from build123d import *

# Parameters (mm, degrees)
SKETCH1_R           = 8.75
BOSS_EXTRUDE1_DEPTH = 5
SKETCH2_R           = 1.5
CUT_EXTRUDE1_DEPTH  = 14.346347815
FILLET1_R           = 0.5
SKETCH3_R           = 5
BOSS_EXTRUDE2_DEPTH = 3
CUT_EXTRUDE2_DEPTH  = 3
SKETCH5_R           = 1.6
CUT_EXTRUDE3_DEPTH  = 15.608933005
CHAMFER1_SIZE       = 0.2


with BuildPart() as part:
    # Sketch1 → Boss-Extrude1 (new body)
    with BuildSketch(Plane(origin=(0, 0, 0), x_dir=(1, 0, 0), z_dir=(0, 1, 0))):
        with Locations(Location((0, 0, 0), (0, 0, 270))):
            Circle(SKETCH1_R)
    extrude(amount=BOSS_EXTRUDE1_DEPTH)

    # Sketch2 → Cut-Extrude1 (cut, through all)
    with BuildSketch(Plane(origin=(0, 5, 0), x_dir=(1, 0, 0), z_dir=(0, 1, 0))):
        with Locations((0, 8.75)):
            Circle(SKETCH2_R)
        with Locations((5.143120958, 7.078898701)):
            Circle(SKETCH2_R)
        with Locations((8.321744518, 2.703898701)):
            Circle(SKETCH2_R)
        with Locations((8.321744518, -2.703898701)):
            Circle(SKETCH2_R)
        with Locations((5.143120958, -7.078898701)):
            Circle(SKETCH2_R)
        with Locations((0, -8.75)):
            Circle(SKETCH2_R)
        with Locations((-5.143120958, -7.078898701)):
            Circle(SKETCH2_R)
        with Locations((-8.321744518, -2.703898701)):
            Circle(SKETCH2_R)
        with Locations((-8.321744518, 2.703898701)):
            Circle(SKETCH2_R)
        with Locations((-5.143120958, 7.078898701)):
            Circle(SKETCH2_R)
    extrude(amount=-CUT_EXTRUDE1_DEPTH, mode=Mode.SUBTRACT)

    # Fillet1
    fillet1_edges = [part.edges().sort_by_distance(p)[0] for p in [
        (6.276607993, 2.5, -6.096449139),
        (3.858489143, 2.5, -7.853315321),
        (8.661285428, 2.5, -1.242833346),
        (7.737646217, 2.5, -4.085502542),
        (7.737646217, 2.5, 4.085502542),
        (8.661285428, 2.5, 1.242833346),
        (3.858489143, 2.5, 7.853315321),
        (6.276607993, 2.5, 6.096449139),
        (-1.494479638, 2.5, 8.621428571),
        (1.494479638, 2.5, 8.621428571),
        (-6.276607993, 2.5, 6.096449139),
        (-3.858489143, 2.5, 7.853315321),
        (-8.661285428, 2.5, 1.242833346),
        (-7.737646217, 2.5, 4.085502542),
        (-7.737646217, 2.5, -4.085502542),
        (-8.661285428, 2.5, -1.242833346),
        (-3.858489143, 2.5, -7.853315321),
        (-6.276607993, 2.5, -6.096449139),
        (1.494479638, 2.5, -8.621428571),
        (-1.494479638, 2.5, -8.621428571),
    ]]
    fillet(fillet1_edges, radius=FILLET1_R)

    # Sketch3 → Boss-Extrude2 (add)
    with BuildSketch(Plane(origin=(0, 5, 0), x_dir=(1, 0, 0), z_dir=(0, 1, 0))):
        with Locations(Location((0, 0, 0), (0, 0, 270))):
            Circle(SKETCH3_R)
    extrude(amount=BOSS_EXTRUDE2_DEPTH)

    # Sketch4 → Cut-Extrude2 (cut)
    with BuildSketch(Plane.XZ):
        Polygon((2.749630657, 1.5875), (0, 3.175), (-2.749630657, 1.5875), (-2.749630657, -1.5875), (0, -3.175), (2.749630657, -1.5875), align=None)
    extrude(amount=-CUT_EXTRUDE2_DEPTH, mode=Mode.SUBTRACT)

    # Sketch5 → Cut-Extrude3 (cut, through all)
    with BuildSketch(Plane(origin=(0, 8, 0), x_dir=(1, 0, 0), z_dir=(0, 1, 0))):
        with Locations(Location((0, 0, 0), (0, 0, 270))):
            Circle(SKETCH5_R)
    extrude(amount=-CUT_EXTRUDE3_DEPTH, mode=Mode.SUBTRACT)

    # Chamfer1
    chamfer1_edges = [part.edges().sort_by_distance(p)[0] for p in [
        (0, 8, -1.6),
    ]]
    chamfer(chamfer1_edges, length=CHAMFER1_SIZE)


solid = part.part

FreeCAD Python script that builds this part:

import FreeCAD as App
import Part
import Sketcher
Q = App.Units.Quantity


def edges_at(feature, points):
    """Names of the edges that pass closest to the given points."""
    edges = feature.Shape.Edges
    near = lambda p: min(range(len(edges)), key=lambda i: edges[i].distToShape(Part.Vertex(*p))[0])
    return sorted({f"Edge{near(p) + 1}" for p in points})

doc = App.newDocument("Part")
params = doc.addObject("Spreadsheet::Sheet", "Params")
for row, (alias, value) in enumerate([
    ("sketch1_diameter", "17.5 mm"),
    ("pad1_length", "5 mm"),
    ("sketch2_diameter", "3 mm"),
    ("fillet_radius", "0.5 mm"),
    ("sketch3_diameter", "10 mm"),
    ("pad2_length", "3 mm"),
    ("pocket2_length", "3 mm"),
    ("sketch5_diameter", "3.2 mm"),
    ("chamfer_size", "0.2 mm"),
], start=1):
    params.set(f"A{row}", alias)
    params.set(f"B{row}", "=" + value)
    params.setAlias(f"B{row}", alias)

body = doc.addObject("PartDesign::Body", "Body")

# Sketch on XZ plane
sketch1 = body.newObject("Sketcher::SketchObject", "Sketch")
sketch1.AttachmentSupport = (doc.getObject("XZ_Plane"), [""])
sketch1.MapMode = "FlatFace"
sketch1.addGeometry(Part.Circle(App.Vector(0, 0, 0), App.Vector(0, 0, 1), 8.75), False)
sketch1.addConstraint([
    Sketcher.Constraint("Coincident", 0, 3, -1, 1),
    Sketcher.Constraint("Diameter", 0, Q("17.5 mm")),
])
sketch1.setExpression("Constraints[1]", "Params.sketch1_diameter")
pad1 = body.newObject("PartDesign::Pad", "Pad")
pad1.Profile = sketch1
pad1.setExpression("Length", "Params.pad1_length")
pad1.Reversed = True

# Sketch on XZ plane
sketch2 = body.newObject("Sketcher::SketchObject", "Sketch001")
sketch2.AttachmentSupport = (doc.getObject("XZ_Plane"), [""])
sketch2.MapMode = "FlatFace"
sketch2.AttachmentOffset = App.Placement(App.Vector(0, 0, -5), App.Rotation())
sketch2.addGeometry([
    Part.Circle(App.Vector(0, -8.75, 0), App.Vector(0, 0, 1), 1.5),  # 0
    Part.Circle(App.Vector(5.143121, -7.078899, 0), App.Vector(0, 0, 1), 1.5),  # 1
    Part.Circle(App.Vector(8.321745, -2.703899, 0), App.Vector(0, 0, 1), 1.5),  # 2
    Part.Circle(App.Vector(8.321745, 2.703899, 0), App.Vector(0, 0, 1), 1.5),  # 3
    Part.Circle(App.Vector(5.143121, 7.078899, 0), App.Vector(0, 0, 1), 1.5),  # 4
    Part.Circle(App.Vector(0, 8.75, 0), App.Vector(0, 0, 1), 1.5),  # 5
    Part.Circle(App.Vector(-5.143121, 7.078899, 0), App.Vector(0, 0, 1), 1.5),  # 6
    Part.Circle(App.Vector(-8.321745, 2.703899, 0), App.Vector(0, 0, 1), 1.5),  # 7
    Part.Circle(App.Vector(-8.321745, -2.703899, 0), App.Vector(0, 0, 1), 1.5),  # 8
    Part.Circle(App.Vector(-5.143121, -7.078899, 0), App.Vector(0, 0, 1), 1.5),  # 9
], False)
sketch2.addConstraint([
    Sketcher.Constraint("Equal", 0, 1),
    Sketcher.Constraint("Equal", 1, 2),
    Sketcher.Constraint("Equal", 2, 3),
    Sketcher.Constraint("Equal", 3, 4),
    Sketcher.Constraint("Equal", 4, 5),
    Sketcher.Constraint("Equal", 5, 6),
    Sketcher.Constraint("Equal", 6, 7),
    Sketcher.Constraint("Equal", 7, 8),
    Sketcher.Constraint("Equal", 8, 9),
    Sketcher.Constraint("Symmetric", 0, 3, 5, 3, -1, 1),
    Sketcher.Constraint("Symmetric", 1, 3, 6, 3, -1, 1),
    Sketcher.Constraint("Symmetric", 2, 3, 7, 3, -1, 1),
    Sketcher.Constraint("Symmetric", 3, 3, 8, 3, -1, 1),
    Sketcher.Constraint("Symmetric", 4, 3, 9, 3, -1, 1),
    Sketcher.Constraint("Symmetric", 4, 3, 6, 3, -2),
    Sketcher.Constraint("Symmetric", 3, 3, 7, 3, -2),
    Sketcher.Constraint("PointOnObject", 0, 3, -2),
    Sketcher.Constraint("Diameter", 0, Q("3 mm")),
    Sketcher.Constraint("DistanceY", 0, 3, 5, 3, Q("17.5 mm")),
    Sketcher.Constraint("DistanceY", 1, 3, 2, 3, Q("4.375 mm")),
    Sketcher.Constraint("DistanceY", 1, 3, -1, 1, Q("7.078899 mm")),
    Sketcher.Constraint("DistanceX", -1, 1, 1, 3, Q("5.143121 mm")),
    Sketcher.Constraint("DistanceX", 7, 3, 3, 3, Q("16.643489 mm")),
])
sketch2.setExpression("Constraints[17]", "Params.sketch2_diameter")
pocket1 = body.newObject("PartDesign::Pocket", "Pocket")
pocket1.Profile = sketch2
pocket1.Type = "ThroughAll"
pocket1.Reversed = True
doc.recompute()

fillet = body.newObject("PartDesign::Fillet", "Fillet")
fillet.Base = (pocket1, edges_at(pocket1, [
    (6.277, 2.5, -6.096),
    (3.858, 2.5, -7.853),
    (8.661, 2.5, -1.243),
    (7.738, 2.5, -4.086),
    (7.738, 2.5, 4.086),
    (8.661, 2.5, 1.243),
    (3.858, 2.5, 7.853),
    (6.277, 2.5, 6.096),
    (-1.494, 2.5, 8.621),
    (1.494, 2.5, 8.621),
    (-6.277, 2.5, 6.096),
    (-3.858, 2.5, 7.853),
    (-8.661, 2.5, 1.243),
    (-7.738, 2.5, 4.086),
    (-7.738, 2.5, -4.086),
    (-8.661, 2.5, -1.243),
    (-3.858, 2.5, -7.853),
    (-6.277, 2.5, -6.096),
    (1.494, 2.5, -8.621),
    (-1.494, 2.5, -8.621),
]))
fillet.setExpression("Radius", "Params.fillet_radius")

# Sketch on XZ plane
sketch3 = body.newObject("Sketcher::SketchObject", "Sketch002")
sketch3.AttachmentSupport = (doc.getObject("XZ_Plane"), [""])
sketch3.MapMode = "FlatFace"
sketch3.AttachmentOffset = App.Placement(App.Vector(0, 0, -5), App.Rotation())
sketch3.addGeometry(Part.Circle(App.Vector(0, 0, 0), App.Vector(0, 0, 1), 5), False)
sketch3.addConstraint([
    Sketcher.Constraint("Coincident", 0, 3, -1, 1),
    Sketcher.Constraint("Diameter", 0, Q("10 mm")),
])
sketch3.setExpression("Constraints[1]", "Params.sketch3_diameter")
pad2 = body.newObject("PartDesign::Pad", "Pad001")
pad2.Profile = sketch3
pad2.setExpression("Length", "Params.pad2_length")
pad2.Reversed = True

# Sketch on XZ plane
sketch4 = body.newObject("Sketcher::SketchObject", "Sketch003")
sketch4.AttachmentSupport = (doc.getObject("XZ_Plane"), [""])
sketch4.MapMode = "FlatFace"
sketch4.addGeometry([
    Part.LineSegment(App.Vector(2.749631, 1.5875, 0), App.Vector(0, 3.175, 0)),  # 0
    Part.LineSegment(App.Vector(0, 3.175, 0), App.Vector(-2.749631, 1.5875, 0)),  # 1
    Part.LineSegment(App.Vector(-2.749631, 1.5875, 0), App.Vector(-2.749631, -1.5875, 0)),  # 2
    Part.LineSegment(App.Vector(-2.749631, -1.5875, 0), App.Vector(0, -3.175, 0)),  # 3
    Part.LineSegment(App.Vector(0, -3.175, 0), App.Vector(2.749631, -1.5875, 0)),  # 4
    Part.LineSegment(App.Vector(2.749631, -1.5875, 0), App.Vector(2.749631, 1.5875, 0)),  # 5
], False)
sketch4.addConstraint([
    Sketcher.Constraint("Coincident", 0, 2, 1, 1),
    Sketcher.Constraint("Coincident", 1, 2, 2, 1),
    Sketcher.Constraint("Coincident", 2, 2, 3, 1),
    Sketcher.Constraint("Coincident", 3, 2, 4, 1),
    Sketcher.Constraint("Coincident", 4, 2, 5, 1),
    Sketcher.Constraint("Coincident", 5, 2, 0, 1),
    Sketcher.Constraint("Vertical", 2),
    Sketcher.Constraint("Vertical", 5),
    Sketcher.Constraint("Symmetric", 0, 2, 3, 2, -1, 1),
    Sketcher.Constraint("Symmetric", 1, 2, 4, 2, -1, 1),
    Sketcher.Constraint("PointOnObject", 0, 2, -2),
    Sketcher.Constraint("Parallel", 0, 3),
    Sketcher.Constraint("Horizontal", 2, 2, 4, 2),
    Sketcher.Constraint("Angle", 0, Q("150 deg")),
    Sketcher.Constraint("DistanceY", 2, 2, 2, 1, Q("3.175 mm")),
    Sketcher.Constraint("DistanceY", 3, 2, 0, 2, Q("6.35 mm")),
])
pocket2 = body.newObject("PartDesign::Pocket", "Pocket001")
pocket2.Profile = sketch4
pocket2.setExpression("Length", "Params.pocket2_length")

# Sketch on XZ plane
sketch5 = body.newObject("Sketcher::SketchObject", "Sketch004")
sketch5.AttachmentSupport = (doc.getObject("XZ_Plane"), [""])
sketch5.MapMode = "FlatFace"
sketch5.AttachmentOffset = App.Placement(App.Vector(0, 0, -8), App.Rotation())
sketch5.addGeometry(Part.Circle(App.Vector(0, 0, 0), App.Vector(0, 0, 1), 1.6), False)
sketch5.addConstraint([
    Sketcher.Constraint("Coincident", 0, 3, -1, 1),
    Sketcher.Constraint("Diameter", 0, Q("3.2 mm")),
])
sketch5.setExpression("Constraints[1]", "Params.sketch5_diameter")
pocket3 = body.newObject("PartDesign::Pocket", "Pocket002")
pocket3.Profile = sketch5
pocket3.Type = "ThroughAll"
pocket3.Reversed = True
doc.recompute()

chamfer = body.newObject("PartDesign::Chamfer", "Chamfer")
chamfer.Base = (pocket3, edges_at(pocket3, [(0, 8, -1.6)]))
chamfer.setExpression("Size", "Params.chamfer_size")

doc.recompute()
